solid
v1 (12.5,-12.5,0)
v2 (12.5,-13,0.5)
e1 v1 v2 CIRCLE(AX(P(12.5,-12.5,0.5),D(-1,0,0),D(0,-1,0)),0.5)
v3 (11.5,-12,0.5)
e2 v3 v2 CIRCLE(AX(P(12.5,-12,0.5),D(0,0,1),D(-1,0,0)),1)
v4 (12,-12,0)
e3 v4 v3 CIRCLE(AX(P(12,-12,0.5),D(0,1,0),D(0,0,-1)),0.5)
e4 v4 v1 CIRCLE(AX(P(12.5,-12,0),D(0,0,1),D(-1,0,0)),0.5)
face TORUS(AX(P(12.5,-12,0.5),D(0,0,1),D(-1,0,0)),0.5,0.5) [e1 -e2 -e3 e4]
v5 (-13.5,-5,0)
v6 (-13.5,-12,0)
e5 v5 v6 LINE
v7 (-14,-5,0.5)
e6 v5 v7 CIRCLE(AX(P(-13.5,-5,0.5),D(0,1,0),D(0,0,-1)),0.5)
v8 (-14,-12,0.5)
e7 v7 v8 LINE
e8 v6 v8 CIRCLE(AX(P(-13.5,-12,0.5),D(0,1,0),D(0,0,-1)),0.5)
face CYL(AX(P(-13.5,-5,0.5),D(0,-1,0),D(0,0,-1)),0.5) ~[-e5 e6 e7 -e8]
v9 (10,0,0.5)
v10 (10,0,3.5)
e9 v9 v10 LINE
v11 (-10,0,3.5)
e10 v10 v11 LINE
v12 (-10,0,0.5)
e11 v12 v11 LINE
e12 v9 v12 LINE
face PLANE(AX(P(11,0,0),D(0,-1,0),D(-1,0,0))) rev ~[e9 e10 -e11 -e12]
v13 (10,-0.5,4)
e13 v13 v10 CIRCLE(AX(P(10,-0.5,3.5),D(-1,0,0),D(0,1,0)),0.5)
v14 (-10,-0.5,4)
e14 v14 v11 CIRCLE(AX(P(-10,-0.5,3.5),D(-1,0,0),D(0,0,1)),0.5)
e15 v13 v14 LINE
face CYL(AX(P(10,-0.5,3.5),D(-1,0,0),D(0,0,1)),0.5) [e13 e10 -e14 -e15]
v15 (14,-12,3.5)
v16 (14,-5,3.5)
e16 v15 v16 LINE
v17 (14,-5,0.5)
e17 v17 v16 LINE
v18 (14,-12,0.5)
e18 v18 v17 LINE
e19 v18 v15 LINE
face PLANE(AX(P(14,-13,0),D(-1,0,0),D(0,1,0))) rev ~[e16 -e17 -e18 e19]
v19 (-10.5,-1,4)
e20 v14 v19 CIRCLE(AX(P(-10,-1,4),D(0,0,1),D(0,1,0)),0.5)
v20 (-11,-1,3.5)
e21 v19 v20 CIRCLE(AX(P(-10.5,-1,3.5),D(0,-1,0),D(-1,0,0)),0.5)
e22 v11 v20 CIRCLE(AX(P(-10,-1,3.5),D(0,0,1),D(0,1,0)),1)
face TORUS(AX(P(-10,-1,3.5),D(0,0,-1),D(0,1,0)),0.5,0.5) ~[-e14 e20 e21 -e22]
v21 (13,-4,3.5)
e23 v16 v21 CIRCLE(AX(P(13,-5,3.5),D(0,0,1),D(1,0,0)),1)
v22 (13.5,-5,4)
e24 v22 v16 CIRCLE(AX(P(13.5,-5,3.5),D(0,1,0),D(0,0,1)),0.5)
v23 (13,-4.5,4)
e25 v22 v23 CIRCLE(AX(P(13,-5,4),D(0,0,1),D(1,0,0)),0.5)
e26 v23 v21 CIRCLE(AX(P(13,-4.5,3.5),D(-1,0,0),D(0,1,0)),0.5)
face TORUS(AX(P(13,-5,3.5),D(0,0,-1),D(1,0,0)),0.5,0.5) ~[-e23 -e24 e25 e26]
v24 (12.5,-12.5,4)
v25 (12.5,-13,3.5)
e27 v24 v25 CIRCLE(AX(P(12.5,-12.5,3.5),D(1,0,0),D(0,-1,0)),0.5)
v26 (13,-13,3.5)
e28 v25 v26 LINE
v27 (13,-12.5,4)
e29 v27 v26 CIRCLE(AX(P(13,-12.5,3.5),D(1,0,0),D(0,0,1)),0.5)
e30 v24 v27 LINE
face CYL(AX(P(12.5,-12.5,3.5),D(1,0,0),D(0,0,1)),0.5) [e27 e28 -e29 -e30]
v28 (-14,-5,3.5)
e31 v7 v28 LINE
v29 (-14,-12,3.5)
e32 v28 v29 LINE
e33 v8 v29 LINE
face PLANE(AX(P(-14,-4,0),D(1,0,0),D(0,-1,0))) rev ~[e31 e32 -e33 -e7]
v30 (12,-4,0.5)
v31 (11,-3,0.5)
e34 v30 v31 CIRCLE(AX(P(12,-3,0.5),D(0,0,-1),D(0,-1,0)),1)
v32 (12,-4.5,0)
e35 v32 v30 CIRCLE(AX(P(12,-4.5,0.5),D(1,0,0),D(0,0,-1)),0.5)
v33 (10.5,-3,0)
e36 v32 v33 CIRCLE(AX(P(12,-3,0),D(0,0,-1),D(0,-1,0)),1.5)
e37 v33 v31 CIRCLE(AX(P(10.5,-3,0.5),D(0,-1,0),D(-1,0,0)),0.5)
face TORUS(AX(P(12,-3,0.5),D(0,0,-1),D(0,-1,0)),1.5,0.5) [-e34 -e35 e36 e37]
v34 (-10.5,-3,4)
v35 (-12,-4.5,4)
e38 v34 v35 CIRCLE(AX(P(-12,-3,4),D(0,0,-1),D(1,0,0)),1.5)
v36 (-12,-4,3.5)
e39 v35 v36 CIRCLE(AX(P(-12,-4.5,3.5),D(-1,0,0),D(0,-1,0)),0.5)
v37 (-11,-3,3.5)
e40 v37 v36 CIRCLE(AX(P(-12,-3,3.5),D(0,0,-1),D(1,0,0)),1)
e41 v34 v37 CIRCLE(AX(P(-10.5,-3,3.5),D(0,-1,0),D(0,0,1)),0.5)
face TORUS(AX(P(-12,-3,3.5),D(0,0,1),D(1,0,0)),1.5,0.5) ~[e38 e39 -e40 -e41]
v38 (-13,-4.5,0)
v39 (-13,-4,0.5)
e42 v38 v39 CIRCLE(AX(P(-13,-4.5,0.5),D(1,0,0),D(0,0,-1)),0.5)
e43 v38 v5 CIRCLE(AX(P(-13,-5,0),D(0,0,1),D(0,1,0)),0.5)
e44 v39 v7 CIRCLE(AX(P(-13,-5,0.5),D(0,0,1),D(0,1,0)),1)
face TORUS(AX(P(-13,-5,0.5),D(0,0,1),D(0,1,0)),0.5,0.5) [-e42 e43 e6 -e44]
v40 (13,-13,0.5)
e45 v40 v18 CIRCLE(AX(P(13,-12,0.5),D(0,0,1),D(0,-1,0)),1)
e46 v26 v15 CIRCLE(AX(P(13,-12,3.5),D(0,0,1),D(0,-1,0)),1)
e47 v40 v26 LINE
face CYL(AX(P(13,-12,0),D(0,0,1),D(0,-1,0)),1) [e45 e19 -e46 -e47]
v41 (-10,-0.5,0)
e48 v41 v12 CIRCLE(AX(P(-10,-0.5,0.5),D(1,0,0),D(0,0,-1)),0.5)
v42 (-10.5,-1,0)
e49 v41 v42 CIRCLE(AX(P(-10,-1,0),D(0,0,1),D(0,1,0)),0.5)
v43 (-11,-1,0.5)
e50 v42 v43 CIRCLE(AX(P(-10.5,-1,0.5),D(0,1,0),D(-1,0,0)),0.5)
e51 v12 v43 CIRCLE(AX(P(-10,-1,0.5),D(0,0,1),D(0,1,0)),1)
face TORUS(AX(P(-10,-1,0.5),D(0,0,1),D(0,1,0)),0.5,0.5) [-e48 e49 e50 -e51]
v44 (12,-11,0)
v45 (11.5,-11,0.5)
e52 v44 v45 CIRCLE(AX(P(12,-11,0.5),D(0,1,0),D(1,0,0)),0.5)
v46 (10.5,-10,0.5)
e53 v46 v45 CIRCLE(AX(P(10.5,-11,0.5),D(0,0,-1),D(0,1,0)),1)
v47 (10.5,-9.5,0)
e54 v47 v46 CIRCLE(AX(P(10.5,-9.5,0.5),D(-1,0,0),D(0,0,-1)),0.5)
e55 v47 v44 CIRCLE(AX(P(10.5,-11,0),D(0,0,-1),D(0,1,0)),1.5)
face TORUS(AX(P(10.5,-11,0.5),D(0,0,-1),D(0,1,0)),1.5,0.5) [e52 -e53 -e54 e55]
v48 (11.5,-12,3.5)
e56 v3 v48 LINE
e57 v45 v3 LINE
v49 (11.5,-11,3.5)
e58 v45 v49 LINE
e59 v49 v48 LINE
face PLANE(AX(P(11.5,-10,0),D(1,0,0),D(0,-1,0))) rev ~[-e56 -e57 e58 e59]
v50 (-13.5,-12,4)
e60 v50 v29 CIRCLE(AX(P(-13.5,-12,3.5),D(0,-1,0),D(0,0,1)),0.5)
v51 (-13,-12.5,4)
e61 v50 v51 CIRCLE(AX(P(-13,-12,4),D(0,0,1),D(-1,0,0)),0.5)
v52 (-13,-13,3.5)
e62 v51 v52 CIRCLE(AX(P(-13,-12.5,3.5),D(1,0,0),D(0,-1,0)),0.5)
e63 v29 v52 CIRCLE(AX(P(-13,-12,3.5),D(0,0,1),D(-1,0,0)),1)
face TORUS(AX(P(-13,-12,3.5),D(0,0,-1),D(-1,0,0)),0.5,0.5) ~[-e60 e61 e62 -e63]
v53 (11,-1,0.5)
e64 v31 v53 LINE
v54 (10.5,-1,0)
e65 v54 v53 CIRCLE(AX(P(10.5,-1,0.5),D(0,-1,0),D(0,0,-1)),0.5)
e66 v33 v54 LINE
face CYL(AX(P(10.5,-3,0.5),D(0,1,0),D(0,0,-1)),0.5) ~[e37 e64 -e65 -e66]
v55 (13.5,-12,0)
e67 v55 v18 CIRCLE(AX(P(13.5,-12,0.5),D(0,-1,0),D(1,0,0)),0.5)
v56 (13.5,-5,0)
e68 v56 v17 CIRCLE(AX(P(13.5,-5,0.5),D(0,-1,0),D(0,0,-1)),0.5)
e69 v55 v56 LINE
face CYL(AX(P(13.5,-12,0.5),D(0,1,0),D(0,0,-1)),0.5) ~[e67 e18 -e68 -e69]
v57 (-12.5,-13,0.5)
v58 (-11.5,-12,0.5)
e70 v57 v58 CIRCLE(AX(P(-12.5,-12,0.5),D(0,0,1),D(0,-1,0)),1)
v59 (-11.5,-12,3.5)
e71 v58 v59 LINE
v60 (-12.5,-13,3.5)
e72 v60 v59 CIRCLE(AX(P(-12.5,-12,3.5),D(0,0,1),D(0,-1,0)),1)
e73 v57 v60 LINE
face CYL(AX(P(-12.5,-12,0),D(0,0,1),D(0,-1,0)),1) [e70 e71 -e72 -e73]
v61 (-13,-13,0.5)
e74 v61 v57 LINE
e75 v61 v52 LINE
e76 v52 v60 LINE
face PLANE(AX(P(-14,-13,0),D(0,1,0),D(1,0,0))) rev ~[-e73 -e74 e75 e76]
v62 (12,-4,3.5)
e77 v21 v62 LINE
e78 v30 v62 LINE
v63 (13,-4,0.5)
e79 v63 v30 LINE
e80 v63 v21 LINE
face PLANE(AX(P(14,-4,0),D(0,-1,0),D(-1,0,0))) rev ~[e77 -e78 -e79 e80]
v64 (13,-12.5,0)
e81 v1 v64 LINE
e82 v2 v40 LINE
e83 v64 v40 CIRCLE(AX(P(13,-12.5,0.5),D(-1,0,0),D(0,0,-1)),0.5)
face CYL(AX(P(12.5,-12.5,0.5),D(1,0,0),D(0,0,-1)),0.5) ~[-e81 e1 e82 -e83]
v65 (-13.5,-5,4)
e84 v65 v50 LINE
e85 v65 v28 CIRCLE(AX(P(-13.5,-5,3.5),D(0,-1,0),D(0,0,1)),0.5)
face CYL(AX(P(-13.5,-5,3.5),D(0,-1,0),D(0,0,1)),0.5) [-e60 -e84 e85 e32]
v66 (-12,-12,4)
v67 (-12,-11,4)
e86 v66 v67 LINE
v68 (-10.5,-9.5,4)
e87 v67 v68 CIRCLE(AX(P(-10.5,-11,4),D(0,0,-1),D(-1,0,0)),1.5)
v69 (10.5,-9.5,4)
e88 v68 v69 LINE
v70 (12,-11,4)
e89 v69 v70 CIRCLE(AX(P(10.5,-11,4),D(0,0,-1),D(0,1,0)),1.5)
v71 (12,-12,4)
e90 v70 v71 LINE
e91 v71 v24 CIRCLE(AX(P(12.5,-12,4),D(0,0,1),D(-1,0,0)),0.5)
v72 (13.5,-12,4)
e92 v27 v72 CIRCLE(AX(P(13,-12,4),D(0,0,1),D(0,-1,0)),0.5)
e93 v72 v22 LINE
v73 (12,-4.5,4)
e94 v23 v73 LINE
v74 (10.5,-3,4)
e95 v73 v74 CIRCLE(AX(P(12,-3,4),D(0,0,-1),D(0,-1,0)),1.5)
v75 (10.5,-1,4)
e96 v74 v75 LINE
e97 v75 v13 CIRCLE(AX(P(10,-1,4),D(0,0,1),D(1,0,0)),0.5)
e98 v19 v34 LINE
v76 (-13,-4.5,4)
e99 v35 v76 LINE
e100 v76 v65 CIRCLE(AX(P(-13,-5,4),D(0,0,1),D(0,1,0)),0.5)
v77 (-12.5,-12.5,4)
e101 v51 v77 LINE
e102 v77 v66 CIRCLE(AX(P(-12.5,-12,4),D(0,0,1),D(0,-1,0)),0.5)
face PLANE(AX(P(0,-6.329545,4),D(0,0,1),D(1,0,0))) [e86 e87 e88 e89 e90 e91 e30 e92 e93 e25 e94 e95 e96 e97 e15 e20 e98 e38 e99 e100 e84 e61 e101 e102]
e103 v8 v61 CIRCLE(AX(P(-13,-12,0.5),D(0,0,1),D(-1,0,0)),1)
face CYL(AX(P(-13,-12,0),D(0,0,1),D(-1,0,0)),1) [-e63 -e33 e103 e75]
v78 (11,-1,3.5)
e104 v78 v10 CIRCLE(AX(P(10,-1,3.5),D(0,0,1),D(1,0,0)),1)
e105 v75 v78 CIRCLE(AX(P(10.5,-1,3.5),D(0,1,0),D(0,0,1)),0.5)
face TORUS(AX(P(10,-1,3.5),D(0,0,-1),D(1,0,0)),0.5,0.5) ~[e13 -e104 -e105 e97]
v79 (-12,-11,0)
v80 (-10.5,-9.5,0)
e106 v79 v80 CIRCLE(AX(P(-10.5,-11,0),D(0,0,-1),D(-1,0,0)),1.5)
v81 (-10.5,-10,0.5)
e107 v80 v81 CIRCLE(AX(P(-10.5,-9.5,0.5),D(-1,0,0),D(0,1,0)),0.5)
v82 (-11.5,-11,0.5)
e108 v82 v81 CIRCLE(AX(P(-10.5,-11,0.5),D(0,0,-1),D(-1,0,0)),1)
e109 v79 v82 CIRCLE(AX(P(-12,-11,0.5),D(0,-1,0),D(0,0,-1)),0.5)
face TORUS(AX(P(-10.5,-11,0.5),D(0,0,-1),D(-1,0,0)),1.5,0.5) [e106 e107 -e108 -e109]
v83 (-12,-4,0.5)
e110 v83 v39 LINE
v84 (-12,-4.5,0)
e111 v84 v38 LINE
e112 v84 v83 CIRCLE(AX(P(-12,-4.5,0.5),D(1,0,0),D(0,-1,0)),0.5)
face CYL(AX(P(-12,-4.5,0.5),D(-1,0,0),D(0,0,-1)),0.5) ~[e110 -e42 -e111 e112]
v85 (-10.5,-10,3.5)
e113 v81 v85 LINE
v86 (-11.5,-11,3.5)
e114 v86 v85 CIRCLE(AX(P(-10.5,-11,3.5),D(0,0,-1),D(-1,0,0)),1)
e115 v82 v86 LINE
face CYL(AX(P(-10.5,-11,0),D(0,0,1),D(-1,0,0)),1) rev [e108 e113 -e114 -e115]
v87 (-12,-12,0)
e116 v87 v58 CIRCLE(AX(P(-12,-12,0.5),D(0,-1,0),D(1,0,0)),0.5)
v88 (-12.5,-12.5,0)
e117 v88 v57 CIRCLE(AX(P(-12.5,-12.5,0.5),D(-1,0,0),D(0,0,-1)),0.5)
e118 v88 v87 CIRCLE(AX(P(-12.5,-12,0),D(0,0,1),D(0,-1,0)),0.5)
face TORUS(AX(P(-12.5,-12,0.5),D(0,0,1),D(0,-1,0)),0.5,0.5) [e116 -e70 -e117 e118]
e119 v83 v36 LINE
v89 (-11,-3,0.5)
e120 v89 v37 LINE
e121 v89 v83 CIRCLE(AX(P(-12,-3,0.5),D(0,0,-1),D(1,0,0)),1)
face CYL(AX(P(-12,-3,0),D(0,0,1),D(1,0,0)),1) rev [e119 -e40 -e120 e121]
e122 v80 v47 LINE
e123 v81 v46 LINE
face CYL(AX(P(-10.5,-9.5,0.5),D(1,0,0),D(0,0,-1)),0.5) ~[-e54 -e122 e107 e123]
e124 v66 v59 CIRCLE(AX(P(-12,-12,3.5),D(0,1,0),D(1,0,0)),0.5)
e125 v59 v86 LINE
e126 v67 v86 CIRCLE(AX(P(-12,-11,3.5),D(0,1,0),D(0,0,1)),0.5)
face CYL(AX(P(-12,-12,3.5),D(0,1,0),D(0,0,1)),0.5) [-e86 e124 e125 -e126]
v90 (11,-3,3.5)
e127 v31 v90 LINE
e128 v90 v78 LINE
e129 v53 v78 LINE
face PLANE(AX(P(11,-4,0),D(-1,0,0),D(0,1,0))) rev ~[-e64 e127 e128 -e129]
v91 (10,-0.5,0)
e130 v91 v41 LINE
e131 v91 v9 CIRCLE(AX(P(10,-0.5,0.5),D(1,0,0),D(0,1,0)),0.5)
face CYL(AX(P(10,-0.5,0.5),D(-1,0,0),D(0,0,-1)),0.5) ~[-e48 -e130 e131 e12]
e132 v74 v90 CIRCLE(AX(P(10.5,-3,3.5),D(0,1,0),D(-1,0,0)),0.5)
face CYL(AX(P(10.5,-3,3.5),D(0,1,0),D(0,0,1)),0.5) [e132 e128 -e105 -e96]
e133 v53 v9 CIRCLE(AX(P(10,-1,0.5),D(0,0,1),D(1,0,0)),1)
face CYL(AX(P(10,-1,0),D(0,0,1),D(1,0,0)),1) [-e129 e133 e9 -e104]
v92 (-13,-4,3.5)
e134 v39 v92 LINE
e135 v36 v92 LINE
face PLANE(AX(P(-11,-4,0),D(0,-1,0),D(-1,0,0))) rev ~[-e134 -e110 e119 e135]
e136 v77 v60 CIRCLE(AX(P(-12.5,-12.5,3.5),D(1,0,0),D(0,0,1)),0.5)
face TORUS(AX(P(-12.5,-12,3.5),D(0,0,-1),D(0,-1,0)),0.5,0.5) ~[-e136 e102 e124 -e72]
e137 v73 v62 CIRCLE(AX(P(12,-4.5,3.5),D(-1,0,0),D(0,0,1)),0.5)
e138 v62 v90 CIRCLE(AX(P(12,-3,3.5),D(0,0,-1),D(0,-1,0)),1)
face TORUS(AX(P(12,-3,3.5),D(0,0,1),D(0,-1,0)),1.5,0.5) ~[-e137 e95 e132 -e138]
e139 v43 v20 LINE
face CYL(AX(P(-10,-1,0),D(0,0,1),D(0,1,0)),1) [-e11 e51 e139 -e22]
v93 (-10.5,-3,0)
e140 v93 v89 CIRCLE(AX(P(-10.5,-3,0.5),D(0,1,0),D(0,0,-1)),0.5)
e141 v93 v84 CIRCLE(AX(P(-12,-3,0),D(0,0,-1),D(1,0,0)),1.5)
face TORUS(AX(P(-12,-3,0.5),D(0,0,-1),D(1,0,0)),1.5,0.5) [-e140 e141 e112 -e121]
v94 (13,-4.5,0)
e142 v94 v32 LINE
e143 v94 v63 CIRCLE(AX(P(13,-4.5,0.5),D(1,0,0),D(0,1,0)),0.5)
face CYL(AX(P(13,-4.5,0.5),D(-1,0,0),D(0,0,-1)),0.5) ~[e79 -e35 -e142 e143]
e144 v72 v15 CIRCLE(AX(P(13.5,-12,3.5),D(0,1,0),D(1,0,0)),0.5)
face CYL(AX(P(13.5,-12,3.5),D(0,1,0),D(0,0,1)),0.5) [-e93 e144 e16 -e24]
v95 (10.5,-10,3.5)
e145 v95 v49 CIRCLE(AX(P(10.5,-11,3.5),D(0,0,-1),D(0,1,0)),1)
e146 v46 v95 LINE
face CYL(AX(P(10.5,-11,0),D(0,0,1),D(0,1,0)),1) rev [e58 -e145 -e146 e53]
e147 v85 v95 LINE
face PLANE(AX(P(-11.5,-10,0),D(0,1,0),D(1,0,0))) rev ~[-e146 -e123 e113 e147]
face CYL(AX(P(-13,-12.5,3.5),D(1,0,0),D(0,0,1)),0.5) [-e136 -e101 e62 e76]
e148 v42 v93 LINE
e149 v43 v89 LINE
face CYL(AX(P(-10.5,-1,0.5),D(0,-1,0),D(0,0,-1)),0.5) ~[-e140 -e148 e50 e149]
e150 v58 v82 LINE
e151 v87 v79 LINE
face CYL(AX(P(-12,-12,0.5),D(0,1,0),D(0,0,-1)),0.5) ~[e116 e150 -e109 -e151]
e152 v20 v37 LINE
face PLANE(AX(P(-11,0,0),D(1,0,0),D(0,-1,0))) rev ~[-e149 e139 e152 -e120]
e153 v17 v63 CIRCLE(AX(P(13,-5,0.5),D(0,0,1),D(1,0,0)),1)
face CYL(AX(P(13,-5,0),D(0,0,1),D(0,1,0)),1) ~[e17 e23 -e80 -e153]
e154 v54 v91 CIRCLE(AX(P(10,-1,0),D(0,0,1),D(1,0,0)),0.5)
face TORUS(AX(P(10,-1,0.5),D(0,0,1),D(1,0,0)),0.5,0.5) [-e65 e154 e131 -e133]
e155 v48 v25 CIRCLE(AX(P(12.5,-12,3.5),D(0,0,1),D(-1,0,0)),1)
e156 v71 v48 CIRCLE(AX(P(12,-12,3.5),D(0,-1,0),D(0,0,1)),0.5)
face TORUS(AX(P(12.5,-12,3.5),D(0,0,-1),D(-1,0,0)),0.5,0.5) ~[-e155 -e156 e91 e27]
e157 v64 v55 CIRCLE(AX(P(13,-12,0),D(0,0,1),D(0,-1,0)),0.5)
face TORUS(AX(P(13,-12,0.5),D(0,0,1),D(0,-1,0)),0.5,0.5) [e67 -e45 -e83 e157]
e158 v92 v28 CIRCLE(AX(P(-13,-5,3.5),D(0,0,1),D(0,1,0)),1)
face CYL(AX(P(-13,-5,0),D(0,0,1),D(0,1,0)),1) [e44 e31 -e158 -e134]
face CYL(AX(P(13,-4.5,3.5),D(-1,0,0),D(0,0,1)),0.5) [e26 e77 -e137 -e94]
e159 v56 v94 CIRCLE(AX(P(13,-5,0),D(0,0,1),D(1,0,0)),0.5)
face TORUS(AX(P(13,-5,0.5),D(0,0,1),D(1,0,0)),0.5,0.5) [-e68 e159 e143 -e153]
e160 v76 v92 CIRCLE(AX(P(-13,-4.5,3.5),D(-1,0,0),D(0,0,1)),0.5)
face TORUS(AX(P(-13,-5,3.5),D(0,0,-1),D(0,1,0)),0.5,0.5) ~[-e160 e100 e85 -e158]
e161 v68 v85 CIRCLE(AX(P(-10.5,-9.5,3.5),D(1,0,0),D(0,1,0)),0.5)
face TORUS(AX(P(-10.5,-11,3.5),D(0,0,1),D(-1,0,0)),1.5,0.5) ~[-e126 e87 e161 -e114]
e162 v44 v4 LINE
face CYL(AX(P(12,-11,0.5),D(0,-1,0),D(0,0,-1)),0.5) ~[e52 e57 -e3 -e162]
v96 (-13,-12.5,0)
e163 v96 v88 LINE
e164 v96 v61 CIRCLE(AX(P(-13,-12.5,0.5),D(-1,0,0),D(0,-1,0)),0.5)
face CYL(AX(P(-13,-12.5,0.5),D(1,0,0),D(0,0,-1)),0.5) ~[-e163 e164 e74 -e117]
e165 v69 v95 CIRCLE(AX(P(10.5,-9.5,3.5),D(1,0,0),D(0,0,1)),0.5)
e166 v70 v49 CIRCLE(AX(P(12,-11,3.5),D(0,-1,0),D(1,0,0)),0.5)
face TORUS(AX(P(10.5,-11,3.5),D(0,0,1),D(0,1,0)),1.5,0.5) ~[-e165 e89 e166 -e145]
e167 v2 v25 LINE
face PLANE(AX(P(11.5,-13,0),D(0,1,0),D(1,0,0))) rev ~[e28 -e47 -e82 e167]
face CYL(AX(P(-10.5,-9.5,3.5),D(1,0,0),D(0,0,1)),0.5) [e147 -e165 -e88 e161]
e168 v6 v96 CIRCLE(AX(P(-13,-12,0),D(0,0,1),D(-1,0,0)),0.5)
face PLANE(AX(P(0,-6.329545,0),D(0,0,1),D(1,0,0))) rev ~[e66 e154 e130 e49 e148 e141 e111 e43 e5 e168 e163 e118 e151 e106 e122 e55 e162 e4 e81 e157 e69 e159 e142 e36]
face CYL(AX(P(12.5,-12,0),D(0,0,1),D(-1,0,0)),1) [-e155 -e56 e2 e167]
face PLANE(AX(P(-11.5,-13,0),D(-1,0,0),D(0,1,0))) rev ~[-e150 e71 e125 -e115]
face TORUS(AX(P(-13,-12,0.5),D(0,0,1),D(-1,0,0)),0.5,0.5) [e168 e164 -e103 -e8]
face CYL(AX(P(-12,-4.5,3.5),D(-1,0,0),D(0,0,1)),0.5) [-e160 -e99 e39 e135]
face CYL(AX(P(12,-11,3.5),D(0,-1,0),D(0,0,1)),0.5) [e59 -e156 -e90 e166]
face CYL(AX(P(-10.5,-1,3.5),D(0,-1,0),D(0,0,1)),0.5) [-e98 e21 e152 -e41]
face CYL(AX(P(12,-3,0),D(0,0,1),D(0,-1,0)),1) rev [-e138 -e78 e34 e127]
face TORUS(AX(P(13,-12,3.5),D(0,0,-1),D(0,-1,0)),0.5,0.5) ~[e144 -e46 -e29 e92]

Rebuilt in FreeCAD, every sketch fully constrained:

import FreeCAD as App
import Part
import Sketcher


def edges_at(feature, points):
    """Names of the edges that pass closest to the given points."""
    edges = feature.Shape.Edges
    near = lambda p: min(range(len(edges)), key=lambda i: edges[i].distToShape(Part.Vertex(*p))[0])
    return sorted({f"Edge{near(p) + 1}" for p in points})


def add_polygon(sketch, points):
    """Adds a closed chain of lines whose ends are joined by coincident constraints."""
    first, n = sketch.GeometryCount, len(points)
    for a, b in zip(points, points[1:] + points[:1]):
        sketch.addGeometry(Part.LineSegment(App.Vector(*a, 0), App.Vector(*b, 0)), False)
    for i in range(n):
        sketch.addConstraint(Sketcher.Constraint("Coincident", first + i, 2, first + (i + 1) % n, 1))

doc = App.newDocument("Part")
body = doc.addObject("PartDesign::Body", "Body")

sketch1 = doc.addObject("Sketcher::SketchObject", "Sketch")
body.addObject(sketch1)
sketch1.AttachmentSupport = (doc.XY_Plane, [""])
sketch1.MapMode = "FlatFace"
add_polygon(sketch1, [(14, -4), (11, -4), (11, 0), (-11, 0), (-11, -4), (-14, -4), (-14, -13), (-11.5, -13), (-11.5, -10), (11.5, -10), (11.5, -13), (14, -13)])
sketch1.addConstraint([
    Sketcher.Constraint("Horizontal", 0),
    Sketcher.Constraint("Vertical", 1),
    Sketcher.Constraint("Horizontal", 2),
    Sketcher.Constraint("Vertical", 3),
    Sketcher.Constraint("Horizontal", 4),
    Sketcher.Constraint("Vertical", 5),
    Sketcher.Constraint("Horizontal", 6),
    Sketcher.Constraint("Vertical", 7),
    Sketcher.Constraint("Horizontal", 8),
    Sketcher.Constraint("Vertical", 9),
    Sketcher.Constraint("Horizontal", 10),
    Sketcher.Constraint("Vertical", 11),
    Sketcher.Constraint("Symmetric", 1, 2, 2, 2, -1, 1),
    Sketcher.Constraint("Symmetric", 6, 2, 9, 2, -2),
    Sketcher.Constraint("Symmetric", 4, 2, 11, 2, -2),
    Sketcher.Constraint("Equal", 4, 7),
    Sketcher.Constraint("DistanceX", 0, 2, 0, 1, 3.0),
    Sketcher.Constraint("DistanceX", 2, 2, 2, 1, 22.0),
    Sketcher.Constraint("DistanceX", 8, 1, 8, 2, 23.0),
    Sketcher.Constraint("DistanceY", 1, 1, 1, 2, 4.0),
    Sketcher.Constraint("DistanceY", 5, 2, 5, 1, 9.0),
])
pad1 = doc.addObject("PartDesign::Pad", "Pad")
body.addObject(pad1)
pad1.Profile = sketch1
pad1.Length = 4
doc.recompute()

fillet = doc.addObject("PartDesign::Fillet", "Fillet")
body.addObject(fillet)
fillet.Base = (pad1, edges_at(pad1, [
    (-11.5, -13, 2),
    (11.5, -13, 2),
    (-14, -13, 2),
    (-11.5, -10, 2),
    (14, -13, 2),
    (11.5, -10, 2),
    (14, -4, 2),
    (11, -4, 2),
    (11, 0, 2),
    (-11, 0, 2),
    (-11, -4, 2),
    (-14, -4, 2),
]))
fillet.Radius = 1
doc.recompute()

fillet2 = doc.addObject("PartDesign::Fillet", "Fillet001")
body.addObject(fillet2)
fillet2.Base = (fillet, edges_at(fillet, [(-14, -8.5, 4), (-14, -8.5, 0)]))
fillet2.Radius = 0.5

doc.recompute()
